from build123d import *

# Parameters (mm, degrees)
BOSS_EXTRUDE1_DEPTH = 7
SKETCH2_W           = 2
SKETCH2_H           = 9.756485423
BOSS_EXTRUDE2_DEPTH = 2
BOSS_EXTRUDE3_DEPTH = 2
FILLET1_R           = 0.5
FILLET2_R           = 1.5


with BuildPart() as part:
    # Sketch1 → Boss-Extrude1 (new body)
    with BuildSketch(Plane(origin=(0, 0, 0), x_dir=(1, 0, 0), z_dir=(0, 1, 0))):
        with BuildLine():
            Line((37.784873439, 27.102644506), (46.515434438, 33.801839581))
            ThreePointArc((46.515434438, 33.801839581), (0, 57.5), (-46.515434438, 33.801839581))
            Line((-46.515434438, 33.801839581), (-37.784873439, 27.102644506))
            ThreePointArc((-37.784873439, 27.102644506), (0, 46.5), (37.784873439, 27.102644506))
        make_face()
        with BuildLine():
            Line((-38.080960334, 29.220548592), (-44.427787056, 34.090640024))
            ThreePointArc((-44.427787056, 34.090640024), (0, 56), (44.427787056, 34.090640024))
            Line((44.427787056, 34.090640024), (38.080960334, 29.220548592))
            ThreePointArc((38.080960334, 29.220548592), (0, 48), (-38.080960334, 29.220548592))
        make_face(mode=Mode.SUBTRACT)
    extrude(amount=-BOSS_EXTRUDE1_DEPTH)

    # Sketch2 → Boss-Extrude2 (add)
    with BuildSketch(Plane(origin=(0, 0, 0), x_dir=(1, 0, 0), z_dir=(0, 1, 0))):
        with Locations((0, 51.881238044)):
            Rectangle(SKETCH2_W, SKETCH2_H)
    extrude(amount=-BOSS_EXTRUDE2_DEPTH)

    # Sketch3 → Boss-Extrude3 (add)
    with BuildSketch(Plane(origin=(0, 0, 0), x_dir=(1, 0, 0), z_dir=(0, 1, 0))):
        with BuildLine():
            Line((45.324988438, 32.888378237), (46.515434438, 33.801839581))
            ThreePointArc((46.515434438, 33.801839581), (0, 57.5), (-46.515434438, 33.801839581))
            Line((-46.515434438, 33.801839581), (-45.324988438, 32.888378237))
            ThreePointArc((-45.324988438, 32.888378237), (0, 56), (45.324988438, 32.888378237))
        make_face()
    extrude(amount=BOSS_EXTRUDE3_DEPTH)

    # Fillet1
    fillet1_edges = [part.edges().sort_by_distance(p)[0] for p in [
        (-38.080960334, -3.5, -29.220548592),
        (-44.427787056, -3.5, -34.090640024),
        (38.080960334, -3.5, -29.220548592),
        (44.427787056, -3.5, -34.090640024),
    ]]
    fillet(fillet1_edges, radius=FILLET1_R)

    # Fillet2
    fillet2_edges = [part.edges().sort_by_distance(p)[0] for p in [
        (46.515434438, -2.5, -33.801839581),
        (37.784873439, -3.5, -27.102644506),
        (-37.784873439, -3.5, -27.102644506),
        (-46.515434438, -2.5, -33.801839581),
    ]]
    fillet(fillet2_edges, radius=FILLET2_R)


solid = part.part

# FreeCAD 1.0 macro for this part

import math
import FreeCAD as App
import Part
import Sketcher

V = App.Vector
Q = App.Units.Quantity


def edges_at(feature, points):
    """Names of the edges that pass closest to the given points."""
    edges = feature.Shape.Edges
    near = lambda p: min(range(len(edges)), key=lambda i: edges[i].distToShape(Part.Vertex(*p))[0])
    return sorted({f"Edge{near(p) + 1}" for p in points})

doc = App.newDocument("Part")
body = doc.addObject("PartDesign::Body", "Body")

# Sketch on XZ plane
sketch1 = body.newObject("Sketcher::SketchObject", "Sketch")
sketch1.AttachmentSupport = (doc.getObject("XZ_Plane"), [""])
sketch1.MapMode = "FlatFace"
sketch1.addGeometry([
    Part.LineSegment(V(37.784873, -27.102645, 0), V(46.515434, -33.80184, 0)),  # 0
    Part.ArcOfCircle(Part.Circle(V(0, 0, 0), V(0, 0, 1), 57.5), math.radians(-143.994842), math.radians(-36.005158)),  # 1
    Part.LineSegment(V(-46.515434, -33.80184, 0), V(-37.784873, -27.102645, 0)),  # 2
    Part.ArcOfCircle(Part.Circle(V(0, 0, 0), V(0, 0, 1), 46.5), math.radians(-144.348572), math.radians(-35.651428)),  # 3
    Part.ArcOfCircle(Part.Circle(V(0, 0, 0), V(0, 0, 1), 48), math.radians(-142.5), math.radians(-37.5)),  # 4
    Part.LineSegment(V(-38.08096, -29.220549, 0), V(-44.427787, -34.09064, 0)),  # 5
    Part.ArcOfCircle(Part.Circle(V(0, 0, 0), V(0, 0, 1), 56), math.radians(-142.5), math.radians(-37.5)),  # 6
    Part.LineSegment(V(44.427787, -34.09064, 0), V(38.08096, -29.220549, 0)),  # 7
], False)
sketch1.addConstraint([
    Sketcher.Constraint("Coincident", 0, 2, 1, 2),
    Sketcher.Constraint("Coincident", 1, 1, 2, 1),
    Sketcher.Constraint("Coincident", 2, 2, 3, 1),
    Sketcher.Constraint("Coincident", 3, 2, 0, 1),
    Sketcher.Constraint("Coincident", 4, 1, 5, 1),
    Sketcher.Constraint("Coincident", 5, 2, 6, 1),
    Sketcher.Constraint("Coincident", 6, 2, 7, 1),
    Sketcher.Constraint("Coincident", 7, 2, 4, 2),
    Sketcher.Constraint("Coincident", 1, 3, -1, 1),
    Sketcher.Constraint("Coincident", 3, 3, -1, 1),
    Sketcher.Constraint("Coincident", 4, 3, -1, 1),
    Sketcher.Constraint("Coincident", 6, 3, -1, 1),
    Sketcher.Constraint("Parallel", 2, 5),
    Sketcher.Constraint("Parallel", 0, 7),
    Sketcher.Constraint("Horizontal", 0, 2, 1, 1),
    Sketcher.Constraint("Horizontal", 2, 2, 3, 2),
    Sketcher.Constraint("Horizontal", 5, 2, 6, 2),
    Sketcher.Constraint("Radius", 4, 48.0),
    Sketcher.Constraint("Radius", 6, 56.0),
    Sketcher.Constraint("Radius", 1, 57.5),
    Sketcher.Constraint("Radius", 3, 46.5),
    Sketcher.Constraint("Angle", 0, Q("-37.5 deg")),
    Sketcher.Constraint("DistanceY", 5, 2, 1, 1, 0.2888),
    Sketcher.Constraint("DistanceY", 0, 2, -1, 1, 33.80184),
])
pad1 = body.newObject("PartDesign::Pad", "Pad")
pad1.Profile = sketch1
pad1.Length = 7

# Sketch on XZ plane
sketch2 = body.newObject("Sketcher::SketchObject", "Sketch001")
sketch2.AttachmentSupport = (doc.getObject("XZ_Plane"), [""])
sketch2.MapMode = "FlatFace"
sketch2.addGeometry([
    Part.LineSegment(V(-1, -56.759481, 0), V(-1, -47.002995, 0)),
    Part.LineSegment(V(-1, -47.002995, 0), V(1, -47.002995, 0)),
    Part.LineSegment(V(1, -47.002995, 0), V(1, -56.759481, 0)),
    Part.LineSegment(V(1, -56.759481, 0), V(-1, -56.759481, 0)),
], False)
sketch2.addConstraint([
    Sketcher.Constraint("Coincident", 0, 2, 1, 1),
    Sketcher.Constraint("Coincident", 1, 2, 2, 1),
    Sketcher.Constraint("Coincident", 2, 2, 3, 1),
    Sketcher.Constraint("Coincident", 3, 2, 0, 1),
    Sketcher.Constraint("Vertical", 0),
    Sketcher.Constraint("Horizontal", 1),
    Sketcher.Constraint("Vertical", 2),
    Sketcher.Constraint("Horizontal", 3),
    Sketcher.Constraint("DistanceX", 1, 1, 1, 2, 2.0),
    Sketcher.Constraint("DistanceX", 0, 2, -1, 1, 1.0),
    Sketcher.Constraint("DistanceY", 0, 1, 0, 2, 9.756485),
    Sketcher.Constraint("DistanceY", 2, 2, -1, 1, 56.759481),
])
pad2 = body.newObject("PartDesign::Pad", "Pad001")
pad2.Profile = sketch2
pad2.Length = 2

# Sketch on XZ plane
sketch3 = body.newObject("Sketcher::SketchObject", "Sketch002")
sketch3.AttachmentSupport = (doc.getObject("XZ_Plane"), [""])
sketch3.MapMode = "FlatFace"
sketch3.addGeometry([
    Part.LineSegment(V(45.324988, -32.888378, 0), V(46.515434, -33.80184, 0)),
    Part.ArcOfCircle(Part.Circle(V(0, 0, 0), V(0, 0, 1), 57.5), math.radians(-143.994842), math.radians(-36.005158)),
    Part.LineSegment(V(-46.515434, -33.80184, 0), V(-45.324988, -32.888378, 0)),
    Part.ArcOfCircle(Part.Circle(V(0, 0, 0), V(0, 0, 1), 56), math.radians(-144.034892), math.radians(-35.965108)),
], False)
sketch3.addConstraint([
    Sketcher.Constraint("Coincident", 0, 2, 1, 2),
    Sketcher.Constraint("Coincident", 1, 1, 2, 1),
    Sketcher.Constraint("Coincident", 2, 2, 3, 1),
    Sketcher.Constraint("Coincident", 3, 2, 0, 1),
    Sketcher.Constraint("Coincident", 1, 3, -1, 1),
    Sketcher.Constraint("Coincident", 3, 3, -1, 1),
    Sketcher.Constraint("Horizontal", 0, 2, 1, 1),
    Sketcher.Constraint("Horizontal", 2, 2, 3, 2),
    Sketcher.Constraint("Radius", 3, 56.0),
    Sketcher.Constraint("Radius", 1, 57.5),
    Sketcher.Constraint("Angle", 0, Q("-37.5 deg")),
    Sketcher.Constraint("DistanceY", 0, 2, -1, 1, 33.80184),
])
pad3 = body.newObject("PartDesign::Pad", "Pad002")
pad3.Profile = sketch3
pad3.Length = 2
pad3.Reversed = True
doc.recompute()

fillet = body.newObject("PartDesign::Fillet", "Fillet")
fillet.Base = (pad3, edges_at(pad3, [
    (-38.081, -3.5, -29.221),
    (-44.428, -3.5, -34.091),
    (38.081, -3.5, -29.221),
    (44.428, -3.5, -34.091),
]))
fillet.Radius = 0.5
doc.recompute()

fillet2 = body.newObject("PartDesign::Fillet", "Fillet001")
fillet2.Base = (fillet, edges_at(fillet, [
    (46.515, -3.5, -33.802),
    (37.785, -3.5, -27.103),
    (-37.785, -3.5, -27.103),
    (-46.515, -3.5, -33.802),
]))
fillet2.Radius = 1.5

doc.recompute()
